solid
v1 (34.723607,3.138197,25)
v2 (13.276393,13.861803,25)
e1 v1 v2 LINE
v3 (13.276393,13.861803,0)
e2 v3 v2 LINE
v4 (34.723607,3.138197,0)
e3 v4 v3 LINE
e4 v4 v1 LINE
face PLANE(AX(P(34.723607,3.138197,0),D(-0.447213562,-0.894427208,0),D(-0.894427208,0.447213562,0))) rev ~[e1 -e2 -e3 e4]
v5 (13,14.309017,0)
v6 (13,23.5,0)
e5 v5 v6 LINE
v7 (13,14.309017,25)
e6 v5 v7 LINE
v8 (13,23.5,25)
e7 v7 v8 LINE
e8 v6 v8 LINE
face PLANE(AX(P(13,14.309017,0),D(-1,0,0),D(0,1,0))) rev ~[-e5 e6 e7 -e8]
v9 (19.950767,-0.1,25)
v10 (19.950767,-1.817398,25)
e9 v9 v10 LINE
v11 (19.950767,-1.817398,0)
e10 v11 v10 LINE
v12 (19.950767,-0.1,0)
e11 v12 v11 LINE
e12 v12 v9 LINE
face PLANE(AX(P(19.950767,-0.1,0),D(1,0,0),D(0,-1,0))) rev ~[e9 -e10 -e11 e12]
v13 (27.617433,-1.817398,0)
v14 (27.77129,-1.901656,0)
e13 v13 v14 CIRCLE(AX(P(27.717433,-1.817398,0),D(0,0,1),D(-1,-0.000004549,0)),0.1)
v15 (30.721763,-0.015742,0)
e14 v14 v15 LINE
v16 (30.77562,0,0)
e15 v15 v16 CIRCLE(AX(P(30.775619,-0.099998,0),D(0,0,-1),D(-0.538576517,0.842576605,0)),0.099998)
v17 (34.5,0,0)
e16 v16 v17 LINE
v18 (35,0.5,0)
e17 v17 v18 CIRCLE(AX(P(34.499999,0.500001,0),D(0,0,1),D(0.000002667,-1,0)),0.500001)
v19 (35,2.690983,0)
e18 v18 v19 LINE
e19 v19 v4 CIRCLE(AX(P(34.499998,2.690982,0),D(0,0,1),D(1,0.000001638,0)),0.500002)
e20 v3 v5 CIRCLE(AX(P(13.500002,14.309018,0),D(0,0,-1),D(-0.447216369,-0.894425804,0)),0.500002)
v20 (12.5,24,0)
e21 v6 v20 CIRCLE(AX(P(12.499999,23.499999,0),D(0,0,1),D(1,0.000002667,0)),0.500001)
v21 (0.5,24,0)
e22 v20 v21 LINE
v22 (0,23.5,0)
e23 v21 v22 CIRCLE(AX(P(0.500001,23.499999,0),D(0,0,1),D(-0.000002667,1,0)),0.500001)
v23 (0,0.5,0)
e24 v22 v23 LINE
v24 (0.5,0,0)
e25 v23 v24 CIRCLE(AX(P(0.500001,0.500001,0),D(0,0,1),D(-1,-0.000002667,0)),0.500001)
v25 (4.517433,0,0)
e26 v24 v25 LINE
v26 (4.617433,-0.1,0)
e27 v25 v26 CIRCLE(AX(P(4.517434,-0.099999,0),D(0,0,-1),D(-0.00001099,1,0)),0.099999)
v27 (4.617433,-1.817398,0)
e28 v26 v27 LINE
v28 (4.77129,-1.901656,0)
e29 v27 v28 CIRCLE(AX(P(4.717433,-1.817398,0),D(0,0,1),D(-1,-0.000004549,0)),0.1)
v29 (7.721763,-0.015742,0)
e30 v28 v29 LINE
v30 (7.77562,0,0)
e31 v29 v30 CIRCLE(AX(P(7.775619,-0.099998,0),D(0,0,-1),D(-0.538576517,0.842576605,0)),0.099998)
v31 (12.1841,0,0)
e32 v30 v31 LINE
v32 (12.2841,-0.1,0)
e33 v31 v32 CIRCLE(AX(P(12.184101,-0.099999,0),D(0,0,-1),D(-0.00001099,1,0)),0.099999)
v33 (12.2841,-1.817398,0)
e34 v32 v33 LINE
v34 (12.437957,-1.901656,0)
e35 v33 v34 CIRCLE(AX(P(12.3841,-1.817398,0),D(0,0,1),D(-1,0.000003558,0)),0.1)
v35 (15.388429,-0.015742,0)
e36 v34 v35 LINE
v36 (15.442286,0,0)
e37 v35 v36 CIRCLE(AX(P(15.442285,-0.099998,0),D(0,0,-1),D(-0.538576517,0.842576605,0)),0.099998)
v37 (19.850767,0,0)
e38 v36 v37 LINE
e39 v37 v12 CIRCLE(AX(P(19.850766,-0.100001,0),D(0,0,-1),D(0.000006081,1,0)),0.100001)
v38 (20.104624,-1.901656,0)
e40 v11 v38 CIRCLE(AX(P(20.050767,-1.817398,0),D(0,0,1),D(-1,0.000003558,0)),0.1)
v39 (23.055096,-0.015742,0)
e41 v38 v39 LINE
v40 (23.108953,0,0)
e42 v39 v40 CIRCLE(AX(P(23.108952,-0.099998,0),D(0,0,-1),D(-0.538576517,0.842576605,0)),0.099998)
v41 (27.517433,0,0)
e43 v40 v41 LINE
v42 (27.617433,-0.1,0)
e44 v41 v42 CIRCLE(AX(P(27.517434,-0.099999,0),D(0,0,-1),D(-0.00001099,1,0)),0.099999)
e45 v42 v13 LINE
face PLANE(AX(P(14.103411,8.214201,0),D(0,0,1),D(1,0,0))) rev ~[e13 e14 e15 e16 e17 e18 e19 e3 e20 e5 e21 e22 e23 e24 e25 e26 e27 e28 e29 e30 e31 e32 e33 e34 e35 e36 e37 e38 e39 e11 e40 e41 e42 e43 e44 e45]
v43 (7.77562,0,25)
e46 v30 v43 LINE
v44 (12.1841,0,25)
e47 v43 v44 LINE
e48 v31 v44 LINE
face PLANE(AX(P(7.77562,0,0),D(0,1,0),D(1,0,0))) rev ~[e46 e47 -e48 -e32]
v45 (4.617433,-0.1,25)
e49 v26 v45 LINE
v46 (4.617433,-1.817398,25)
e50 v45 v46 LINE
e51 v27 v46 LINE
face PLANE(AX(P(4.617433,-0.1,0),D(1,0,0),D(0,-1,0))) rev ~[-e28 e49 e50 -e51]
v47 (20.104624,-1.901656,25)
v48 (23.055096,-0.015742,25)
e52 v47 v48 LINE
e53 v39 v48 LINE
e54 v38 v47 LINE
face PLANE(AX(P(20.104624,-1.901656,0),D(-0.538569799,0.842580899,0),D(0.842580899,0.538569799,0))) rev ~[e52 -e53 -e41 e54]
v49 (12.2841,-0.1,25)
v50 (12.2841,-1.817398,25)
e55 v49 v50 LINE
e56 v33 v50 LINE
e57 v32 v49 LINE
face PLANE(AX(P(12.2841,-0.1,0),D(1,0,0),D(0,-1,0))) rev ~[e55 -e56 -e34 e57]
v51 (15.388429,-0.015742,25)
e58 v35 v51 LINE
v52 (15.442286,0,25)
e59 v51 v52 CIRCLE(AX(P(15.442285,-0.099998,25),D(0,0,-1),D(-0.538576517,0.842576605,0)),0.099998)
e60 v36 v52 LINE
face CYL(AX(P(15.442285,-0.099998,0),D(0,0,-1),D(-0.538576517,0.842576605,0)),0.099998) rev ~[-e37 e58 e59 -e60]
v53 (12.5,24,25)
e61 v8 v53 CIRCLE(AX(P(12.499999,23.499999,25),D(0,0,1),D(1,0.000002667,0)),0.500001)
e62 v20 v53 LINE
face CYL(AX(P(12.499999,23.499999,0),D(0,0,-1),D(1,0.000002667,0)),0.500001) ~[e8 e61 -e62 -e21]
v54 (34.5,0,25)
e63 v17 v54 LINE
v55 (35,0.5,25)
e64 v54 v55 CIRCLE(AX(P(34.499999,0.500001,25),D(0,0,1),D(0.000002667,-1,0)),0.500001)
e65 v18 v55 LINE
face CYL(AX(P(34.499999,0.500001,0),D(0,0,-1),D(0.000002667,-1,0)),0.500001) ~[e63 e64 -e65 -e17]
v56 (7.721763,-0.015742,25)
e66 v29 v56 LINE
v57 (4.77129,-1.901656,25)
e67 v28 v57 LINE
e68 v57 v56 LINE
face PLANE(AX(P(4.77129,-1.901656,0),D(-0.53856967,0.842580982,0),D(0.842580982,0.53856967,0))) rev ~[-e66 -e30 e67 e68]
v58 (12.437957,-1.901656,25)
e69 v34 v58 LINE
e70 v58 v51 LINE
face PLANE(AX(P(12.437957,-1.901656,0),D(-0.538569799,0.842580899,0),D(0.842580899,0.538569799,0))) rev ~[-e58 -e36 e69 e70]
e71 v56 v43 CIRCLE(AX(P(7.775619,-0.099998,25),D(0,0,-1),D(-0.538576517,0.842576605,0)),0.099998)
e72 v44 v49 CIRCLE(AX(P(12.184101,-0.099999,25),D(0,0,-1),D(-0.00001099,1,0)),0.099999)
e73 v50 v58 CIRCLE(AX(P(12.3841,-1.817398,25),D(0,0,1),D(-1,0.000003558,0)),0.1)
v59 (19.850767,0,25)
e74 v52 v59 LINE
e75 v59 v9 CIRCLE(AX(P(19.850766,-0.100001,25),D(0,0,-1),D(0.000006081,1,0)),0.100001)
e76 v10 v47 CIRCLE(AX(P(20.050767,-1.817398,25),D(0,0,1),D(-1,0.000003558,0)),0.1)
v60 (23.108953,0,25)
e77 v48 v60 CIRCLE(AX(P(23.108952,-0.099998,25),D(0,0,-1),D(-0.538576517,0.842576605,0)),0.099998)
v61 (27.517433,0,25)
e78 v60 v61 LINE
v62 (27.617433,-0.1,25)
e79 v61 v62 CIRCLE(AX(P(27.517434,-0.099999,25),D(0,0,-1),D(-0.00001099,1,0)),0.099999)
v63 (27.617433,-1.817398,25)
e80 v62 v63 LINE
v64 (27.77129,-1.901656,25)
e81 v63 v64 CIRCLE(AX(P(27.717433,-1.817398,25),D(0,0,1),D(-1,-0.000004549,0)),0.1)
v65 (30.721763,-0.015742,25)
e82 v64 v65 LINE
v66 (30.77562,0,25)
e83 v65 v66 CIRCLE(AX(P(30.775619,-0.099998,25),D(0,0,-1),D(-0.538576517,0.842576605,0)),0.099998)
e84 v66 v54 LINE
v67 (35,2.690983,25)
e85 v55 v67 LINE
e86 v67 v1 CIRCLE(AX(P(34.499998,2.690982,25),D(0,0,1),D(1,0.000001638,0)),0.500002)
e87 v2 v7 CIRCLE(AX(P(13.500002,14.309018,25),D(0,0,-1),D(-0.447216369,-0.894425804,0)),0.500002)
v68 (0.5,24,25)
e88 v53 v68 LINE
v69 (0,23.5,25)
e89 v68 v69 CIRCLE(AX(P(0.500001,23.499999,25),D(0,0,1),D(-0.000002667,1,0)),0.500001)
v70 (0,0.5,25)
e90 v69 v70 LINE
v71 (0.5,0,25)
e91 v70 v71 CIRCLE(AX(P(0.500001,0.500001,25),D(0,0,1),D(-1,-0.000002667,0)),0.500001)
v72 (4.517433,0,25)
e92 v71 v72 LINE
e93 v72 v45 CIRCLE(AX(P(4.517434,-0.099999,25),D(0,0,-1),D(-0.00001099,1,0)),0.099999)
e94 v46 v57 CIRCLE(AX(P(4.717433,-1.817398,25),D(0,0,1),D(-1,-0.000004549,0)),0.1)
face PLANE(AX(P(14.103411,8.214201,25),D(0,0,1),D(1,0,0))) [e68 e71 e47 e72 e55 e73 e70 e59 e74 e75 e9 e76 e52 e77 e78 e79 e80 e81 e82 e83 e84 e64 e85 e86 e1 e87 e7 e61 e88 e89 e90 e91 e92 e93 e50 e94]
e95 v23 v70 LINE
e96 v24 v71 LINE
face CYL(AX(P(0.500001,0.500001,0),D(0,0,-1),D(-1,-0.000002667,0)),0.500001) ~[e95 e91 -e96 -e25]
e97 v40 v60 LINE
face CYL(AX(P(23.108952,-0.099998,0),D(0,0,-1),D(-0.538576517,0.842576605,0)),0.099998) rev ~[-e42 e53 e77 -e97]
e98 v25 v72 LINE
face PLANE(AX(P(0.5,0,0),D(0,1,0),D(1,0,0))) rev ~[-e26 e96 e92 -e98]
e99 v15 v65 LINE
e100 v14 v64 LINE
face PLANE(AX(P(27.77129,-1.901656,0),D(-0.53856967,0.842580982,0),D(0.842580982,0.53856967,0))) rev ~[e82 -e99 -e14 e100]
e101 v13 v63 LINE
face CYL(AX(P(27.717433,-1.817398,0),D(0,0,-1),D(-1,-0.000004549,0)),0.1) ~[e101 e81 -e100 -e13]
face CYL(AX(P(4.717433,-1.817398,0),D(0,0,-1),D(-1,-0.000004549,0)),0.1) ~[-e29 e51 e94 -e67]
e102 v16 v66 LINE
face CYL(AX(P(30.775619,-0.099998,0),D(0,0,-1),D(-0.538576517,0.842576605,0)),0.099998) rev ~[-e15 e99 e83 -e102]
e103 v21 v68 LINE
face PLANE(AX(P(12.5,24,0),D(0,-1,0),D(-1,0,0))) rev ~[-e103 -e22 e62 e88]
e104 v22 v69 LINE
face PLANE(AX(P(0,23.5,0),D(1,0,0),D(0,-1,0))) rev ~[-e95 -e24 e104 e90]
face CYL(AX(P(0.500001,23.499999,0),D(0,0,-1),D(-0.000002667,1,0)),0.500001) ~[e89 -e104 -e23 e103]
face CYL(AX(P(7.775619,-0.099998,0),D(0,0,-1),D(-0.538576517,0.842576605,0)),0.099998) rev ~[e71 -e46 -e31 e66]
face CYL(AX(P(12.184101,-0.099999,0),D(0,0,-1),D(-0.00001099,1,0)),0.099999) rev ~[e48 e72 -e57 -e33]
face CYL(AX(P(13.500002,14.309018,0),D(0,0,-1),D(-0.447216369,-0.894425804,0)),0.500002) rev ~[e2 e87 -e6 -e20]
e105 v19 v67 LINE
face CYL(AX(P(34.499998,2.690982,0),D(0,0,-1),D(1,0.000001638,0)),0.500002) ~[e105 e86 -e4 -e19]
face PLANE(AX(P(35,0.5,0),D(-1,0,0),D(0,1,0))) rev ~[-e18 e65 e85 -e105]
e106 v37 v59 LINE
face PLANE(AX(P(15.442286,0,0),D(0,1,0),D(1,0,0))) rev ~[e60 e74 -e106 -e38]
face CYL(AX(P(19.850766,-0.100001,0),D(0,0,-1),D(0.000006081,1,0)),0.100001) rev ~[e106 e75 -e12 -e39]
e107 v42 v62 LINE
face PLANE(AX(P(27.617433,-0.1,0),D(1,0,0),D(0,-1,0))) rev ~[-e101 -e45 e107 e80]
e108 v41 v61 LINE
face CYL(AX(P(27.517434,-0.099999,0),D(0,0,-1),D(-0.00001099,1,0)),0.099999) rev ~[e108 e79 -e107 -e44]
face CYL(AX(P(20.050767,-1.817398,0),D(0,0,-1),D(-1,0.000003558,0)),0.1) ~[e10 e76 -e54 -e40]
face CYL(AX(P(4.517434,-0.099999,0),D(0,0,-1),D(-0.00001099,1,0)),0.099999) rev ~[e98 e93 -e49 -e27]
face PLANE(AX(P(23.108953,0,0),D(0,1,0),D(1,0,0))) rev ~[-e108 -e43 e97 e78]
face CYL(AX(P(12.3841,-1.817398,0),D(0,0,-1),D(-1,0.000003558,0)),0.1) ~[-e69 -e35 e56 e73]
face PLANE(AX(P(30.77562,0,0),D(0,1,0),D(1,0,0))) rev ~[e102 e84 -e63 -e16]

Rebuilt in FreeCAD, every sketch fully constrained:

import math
import FreeCAD as App
import Part
import Sketcher
from FreeCAD import Vector

doc = App.newDocument("Part")
params = doc.addObject("Spreadsheet::Sheet", "Params")
for row, (alias, value) in enumerate([
    ("sketch1_radius", "0.500001 mm"),
    ("sketch1_radius2", "0.099999 mm"),
    ("sketch1_width", "12 mm"),
    ("sketch1_height", "23 mm"),
    ("pad1_length", "25 mm"),
], start=1):
    params.set(f"A{row}", alias)
    params.set(f"B{row}", "=" + value)
    params.setAlias(f"B{row}", alias)

body = doc.addObject("PartDesign::Body", "Body")

# Sketch on XY plane
sketch1 = body.newObject("Sketcher::SketchObject", "Sketch")
sketch1.AttachmentSupport = (doc.getObject("XY_Plane"), [""])
sketch1.MapMode = "FlatFace"
sketch1.addGeometry([
    Part.LineSegment(Vector(0, 23.5, 0), Vector(0, 0.5, 0)),  # 0
    Part.ArcOfCircle(Part.Circle(Vector(0.5, 0.5, 0), Vector(0, 0, 1), 0.5), math.radians(-180), math.radians(-90)),  # 1
    Part.LineSegment(Vector(0.5, 0, 0), Vector(4.52, 0, 0)),  # 2
    Part.ArcOfCircle(Part.Circle(Vector(4.52, -0.1, 0), Vector(0, 0, 1), 0.1), math.radians(0), math.radians(90)),  # 3
    Part.LineSegment(Vector(4.62, -0.1, 0), Vector(4.62, -1.82, 0)),  # 4
    Part.ArcOfCircle(Part.Circle(Vector(4.72, -1.82, 0), Vector(0, 0, 1), 0.1), math.radians(-180), math.radians(-57)),  # 5
    Part.LineSegment(Vector(4.77, -1.9, 0), Vector(7.72, -0.02, 0)),  # 6
    Part.ArcOfCircle(Part.Circle(Vector(7.78, -0.1, 0), Vector(0, 0, 1), 0.1), math.radians(90), math.radians(123)),  # 7
    Part.LineSegment(Vector(7.78, 0, 0), Vector(12.18, 0, 0)),  # 8
    Part.ArcOfCircle(Part.Circle(Vector(12.18, -0.1, 0), Vector(0, 0, 1), 0.1), math.radians(0), math.radians(90)),  # 9
    Part.LineSegment(Vector(12.28, -0.1, 0), Vector(12.28, -1.82, 0)),  # 10
    Part.ArcOfCircle(Part.Circle(Vector(12.38, -1.82, 0), Vector(0, 0, 1), 0.1), math.radians(180), math.radians(303)),  # 11
    Part.LineSegment(Vector(12.44, -1.9, 0), Vector(15.39, -0.02, 0)),  # 12
    Part.ArcOfCircle(Part.Circle(Vector(15.44, -0.1, 0), Vector(0, 0, 1), 0.1), math.radians(90), math.radians(123)),  # 13
    Part.LineSegment(Vector(15.44, 0, 0), Vector(19.85, 0, 0)),  # 14
    Part.ArcOfCircle(Part.Circle(Vector(19.85, -0.1, 0), Vector(0, 0, 1), 0.1), math.radians(0), math.radians(90)),  # 15
    Part.LineSegment(Vector(19.95, -0.1, 0), Vector(19.95, -1.82, 0)),  # 16
    Part.ArcOfCircle(Part.Circle(Vector(20.05, -1.82, 0), Vector(0, 0, 1), 0.1), math.radians(180), math.radians(303)),  # 17
    Part.LineSegment(Vector(20.1, -1.9, 0), Vector(23.06, -0.02, 0)),  # 18
    Part.ArcOfCircle(Part.Circle(Vector(23.11, -0.1, 0), Vector(0, 0, 1), 0.1), math.radians(90), math.radians(123)),  # 19
    Part.LineSegment(Vector(23.11, 0, 0), Vector(27.52, 0, 0)),  # 20
    Part.ArcOfCircle(Part.Circle(Vector(27.52, -0.1, 0), Vector(0, 0, 1), 0.1), math.radians(0), math.radians(90)),  # 21
    Part.LineSegment(Vector(27.62, -0.1, 0), Vector(27.62, -1.82, 0)),  # 22
    Part.ArcOfCircle(Part.Circle(Vector(27.72, -1.82, 0), Vector(0, 0, 1), 0.1), math.radians(-180), math.radians(-57)),  # 23
    Part.LineSegment(Vector(27.77, -1.9, 0), Vector(30.72, -0.02, 0)),  # 24
    Part.ArcOfCircle(Part.Circle(Vector(30.78, -0.1, 0), Vector(0, 0, 1), 0.1), math.radians(90), math.radians(123)),  # 25
    Part.LineSegment(Vector(30.78, 0, 0), Vector(34.5, 0, 0)),  # 26
    Part.ArcOfCircle(Part.Circle(Vector(34.5, 0.5, 0), Vector(0, 0, 1), 0.5), math.radians(-90), math.radians(0)),  # 27
    Part.LineSegment(Vector(35, 0.5, 0), Vector(35, 2.69, 0)),  # 28
    Part.ArcOfCircle(Part.Circle(Vector(34.5, 2.69, 0), Vector(0, 0, 1), 0.5), math.radians(0), math.radians(63)),  # 29
    Part.LineSegment(Vector(34.72, 3.14, 0), Vector(13.28, 13.86, 0)),  # 30
    Part.ArcOfCircle(Part.Circle(Vector(13.5, 14.31, 0), Vector(0, 0, 1), 0.5), math.radians(-180), math.radians(-117)),  # 31
    Part.LineSegment(Vector(13, 14.31, 0), Vector(13, 23.5, 0)),  # 32
    Part.ArcOfCircle(Part.Circle(Vector(12.5, 23.5, 0), Vector(0, 0, 1), 0.5), math.radians(0), math.radians(90)),  # 33
    Part.LineSegment(Vector(12.5, 24, 0), Vector(0.5, 24, 0)),  # 34
    Part.ArcOfCircle(Part.Circle(Vector(0.5, 23.5, 0), Vector(0, 0, 1), 0.5), math.radians(90), math.radians(180)),  # 35
], False)
sketch1.addConstraint([
    Sketcher.Constraint("Coincident", 0, 2, 1, 1),
    Sketcher.Constraint("Coincident", 1, 2, 2, 1),
    Sketcher.Constraint("Coincident", 2, 2, 3, 2),
    Sketcher.Constraint("Coincident", 3, 1, 4, 1),
    Sketcher.Constraint("Coincident", 4, 2, 5, 1),
    Sketcher.Constraint("Coincident", 5, 2, 6, 1),
    Sketcher.Constraint("Coincident", 6, 2, 7, 2),
    Sketcher.Constraint("Coincident", 7, 1, 8, 1),
    Sketcher.Constraint("Coincident", 8, 2, 9, 2),
    Sketcher.Constraint("Coincident", 9, 1, 10, 1),
    Sketcher.Constraint("Coincident", 10, 2, 11, 1),
    Sketcher.Constraint("Coincident", 11, 2, 12, 1),
    Sketcher.Constraint("Coincident", 12, 2, 13, 2),
    Sketcher.Constraint("Coincident", 13, 1, 14, 1),
    Sketcher.Constraint("Coincident", 14, 2, 15, 2),
    Sketcher.Constraint("Coincident", 15, 1, 16, 1),
    Sketcher.Constraint("Coincident", 16, 2, 17, 1),
    Sketcher.Constraint("Coincident", 17, 2, 18, 1),
    Sketcher.Constraint("Coincident", 18, 2, 19, 2),
    Sketcher.Constraint("Coincident", 19, 1, 20, 1),
    Sketcher.Constraint("Coincident", 20, 2, 21, 2),
    Sketcher.Constraint("Coincident", 21, 1, 22, 1),
    Sketcher.Constraint("Coincident", 22, 2, 23, 1),
    Sketcher.Constraint("Coincident", 23, 2, 24, 1),
    Sketcher.Constraint("Coincident", 24, 2, 25, 2),
    Sketcher.Constraint("Coincident", 25, 1, 26, 1),
    Sketcher.Constraint("Coincident", 26, 2, 27, 1),
    Sketcher.Constraint("Coincident", 27, 2, 28, 1),
    Sketcher.Constraint("Tangent", 28, 2, 29, 1),
    Sketcher.Constraint("Coincident", 29, 2, 30, 1),
    Sketcher.Constraint("Coincident", 30, 2, 31, 2),
    Sketcher.Constraint("Tangent", 31, 1, 32, 1),
    Sketcher.Constraint("Coincident", 32, 2, 33, 1),
    Sketcher.Constraint("Coincident", 33, 2, 34, 1),
    Sketcher.Constraint("Coincident", 34, 2, 35, 1),
    Sketcher.Constraint("Coincident", 35, 2, 0, 1),
    Sketcher.Constraint("Vertical", 0),
    Sketcher.Constraint("Horizontal", 2),
    Sketcher.Constraint("Vertical", 4),
    Sketcher.Constraint("Horizontal", 8),
    Sketcher.Constraint("Vertical", 10),
    Sketcher.Constraint("Horizontal", 14),
    Sketcher.Constraint("Vertical", 16),
    Sketcher.Constraint("Horizontal", 20),
    Sketcher.Constraint("Vertical", 22),
    Sketcher.Constraint("Horizontal", 26),
    Sketcher.Constraint("Vertical", 28),
    Sketcher.Constraint("Vertical", 32),
    Sketcher.Constraint("Horizontal", 34),
    Sketcher.Constraint("Equal", 3, 5),
    Sketcher.Constraint("Equal", 3, 7),
    Sketcher.Constraint("Equal", 7, 9),
    Sketcher.Constraint("Equal", 9, 11),
    Sketcher.Constraint("Equal", 11, 13),
    Sketcher.Constraint("Equal", 11, 15),
    Sketcher.Constraint("Equal", 15, 17),
    Sketcher.Constraint("Equal", 17, 19),
    Sketcher.Constraint("Equal", 19, 21),
    Sketcher.Constraint("Equal", 21, 23),
    Sketcher.Constraint("Equal", 21, 25),
    Sketcher.Constraint("Equal", 1, 27),
    Sketcher.Constraint("Equal", 27, 29),
    Sketcher.Constraint("Equal", 29, 31),
    Sketcher.Constraint("Equal", 31, 33),
    Sketcher.Constraint("Equal", 33, 35),
    Sketcher.Constraint("PointOnObject", 0, 2, -2),
    Sketcher.Constraint("PointOnObject", 1, 2, -1),
    Sketcher.Constraint("PointOnObject", 7, 1, -1),
    Sketcher.Constraint("PointOnObject", 13, 1, -1),
    Sketcher.Constraint("PointOnObject", 19, 1, -1),
    Sketcher.Constraint("PointOnObject", 25, 1, -1),
    Sketcher.Constraint("Parallel", 6, 12),
    Sketcher.Constraint("Parallel", 12, 18),
    Sketcher.Constraint("Parallel", 18, 24),
    Sketcher.Constraint("Horizontal", 5, 3, 11, 3),
    Sketcher.Constraint("Horizontal", 11, 3, 17, 3),
    Sketcher.Constraint("Horizontal", 17, 3, 23, 3),
    Sketcher.Constraint("Horizontal", 27, 3, 0, 2),
    Sketcher.Constraint("Horizontal", 21, 3, 3, 1),
    Sketcher.Constraint("Horizontal", 23, 3, 4, 2),
    Sketcher.Constraint("Horizontal", 3, 1, 9, 1),
    Sketcher.Constraint("Horizontal", 4, 2, 10, 2),
    Sketcher.Constraint("Horizontal", 5, 2, 11, 2),
    Sketcher.Constraint("Horizontal", 6, 2, 12, 2),
    Sketcher.Constraint("Horizontal", 9, 1, 15, 1),
    Sketcher.Constraint("Horizontal", 10, 2, 16, 2),
    Sketcher.Constraint("Horizontal", 11, 2, 17, 2),
    Sketcher.Constraint("Horizontal", 12, 2, 18, 2),
    Sketcher.Constraint("Horizontal", 15, 1, 21, 1),
    Sketcher.Constraint("Horizontal", 16, 2, 22, 2),
    Sketcher.Constraint("Horizontal", 17, 2, 23, 2),
    Sketcher.Constraint("Horizontal", 18, 2, 24, 2),
    Sketcher.Constraint("Horizontal", 0, 2, 27, 2),
    Sketcher.Constraint("Horizontal", 35, 3, 32, 2),
    Sketcher.Constraint("Horizontal", 32, 2, 35, 2),
    Sketcher.Constraint("Vertical", 35, 3, 1, 2),
    Sketcher.Constraint("Vertical", 3, 3, 2, 2),
    Sketcher.Constraint("Vertical", 9, 3, 8, 2),
    Sketcher.Constraint("Vertical", 15, 3, 14, 2),
    Sketcher.Constraint("Vertical", 21, 3, 20, 2),
    Sketcher.Constraint("Vertical", 27, 3, 26, 2),
    Sketcher.Constraint("Vertical", 1, 2, 34, 2),
    Sketcher.Constraint("Equal", 8, 14),
    Sketcher.Constraint("Equal", 14, 20),
    Sketcher.Constraint("Radius", 1, 0.500001),
    Sketcher.Constraint("Radius", 3, 0.099999),
    Sketcher.Constraint("DistanceX", 34, 2, 34, 1, 12.0),
    Sketcher.Constraint("DistanceY", 0, 2, 0, 1, 23.0),
    Sketcher.Constraint("DistanceX", -1, 1, 27, 2, 35.0),
    Sketcher.Constraint("DistanceX", -1, 1, 31, 1, 13.0),
    Sketcher.Constraint("DistanceX", 8, 1, 8, 2, 4.40848),
    Sketcher.Constraint("DistanceX", 26, 1, 26, 2, 3.72438),
    Sketcher.Constraint("DistanceX", -1, 1, 9, 3, 12.184101),
    Sketcher.Constraint("DistanceY", 11, 3, -1, 1, 1.817398),
    Sketcher.Constraint("DistanceY", 9, 3, 30, 2, 13.961802),
    Sketcher.Constraint("Distance", 6, 3.501709),
    Sketcher.Constraint("DistanceX", 2, 1, 2, 2, 4.017433),
    Sketcher.Constraint("DistanceY", 28, 1, 28, 2, 2.190983),
    Sketcher.Constraint("DistanceY", 32, 1, 32, 2, 9.190983),
    Sketcher.Constraint("DistanceX", -1, 1, 7, 3, 7.775619),
    Sketcher.Constraint("DistanceX", -1, 1, 25, 3, 30.775619),
    Sketcher.Constraint("DistanceX", -1, 1, 5, 2, 4.77129),
    Sketcher.Constraint("DistanceX", 13, 3, 15, 3, 4.408481),
    Sketcher.Constraint("DistanceX", 29, 3, 29, 2, 0.223609),
])
sketch1.setExpression("Constraints[104]", "Params.sketch1_radius")
sketch1.setExpression("Constraints[105]", "Params.sketch1_radius2")
sketch1.setExpression("Constraints[106]", "Params.sketch1_width")
sketch1.setExpression("Constraints[107]", "Params.sketch1_height")
pad1 = body.newObject("PartDesign::Pad", "Pad")
pad1.Profile = sketch1
pad1.setExpression("Length", "Params.pad1_length")

doc.recompute()
